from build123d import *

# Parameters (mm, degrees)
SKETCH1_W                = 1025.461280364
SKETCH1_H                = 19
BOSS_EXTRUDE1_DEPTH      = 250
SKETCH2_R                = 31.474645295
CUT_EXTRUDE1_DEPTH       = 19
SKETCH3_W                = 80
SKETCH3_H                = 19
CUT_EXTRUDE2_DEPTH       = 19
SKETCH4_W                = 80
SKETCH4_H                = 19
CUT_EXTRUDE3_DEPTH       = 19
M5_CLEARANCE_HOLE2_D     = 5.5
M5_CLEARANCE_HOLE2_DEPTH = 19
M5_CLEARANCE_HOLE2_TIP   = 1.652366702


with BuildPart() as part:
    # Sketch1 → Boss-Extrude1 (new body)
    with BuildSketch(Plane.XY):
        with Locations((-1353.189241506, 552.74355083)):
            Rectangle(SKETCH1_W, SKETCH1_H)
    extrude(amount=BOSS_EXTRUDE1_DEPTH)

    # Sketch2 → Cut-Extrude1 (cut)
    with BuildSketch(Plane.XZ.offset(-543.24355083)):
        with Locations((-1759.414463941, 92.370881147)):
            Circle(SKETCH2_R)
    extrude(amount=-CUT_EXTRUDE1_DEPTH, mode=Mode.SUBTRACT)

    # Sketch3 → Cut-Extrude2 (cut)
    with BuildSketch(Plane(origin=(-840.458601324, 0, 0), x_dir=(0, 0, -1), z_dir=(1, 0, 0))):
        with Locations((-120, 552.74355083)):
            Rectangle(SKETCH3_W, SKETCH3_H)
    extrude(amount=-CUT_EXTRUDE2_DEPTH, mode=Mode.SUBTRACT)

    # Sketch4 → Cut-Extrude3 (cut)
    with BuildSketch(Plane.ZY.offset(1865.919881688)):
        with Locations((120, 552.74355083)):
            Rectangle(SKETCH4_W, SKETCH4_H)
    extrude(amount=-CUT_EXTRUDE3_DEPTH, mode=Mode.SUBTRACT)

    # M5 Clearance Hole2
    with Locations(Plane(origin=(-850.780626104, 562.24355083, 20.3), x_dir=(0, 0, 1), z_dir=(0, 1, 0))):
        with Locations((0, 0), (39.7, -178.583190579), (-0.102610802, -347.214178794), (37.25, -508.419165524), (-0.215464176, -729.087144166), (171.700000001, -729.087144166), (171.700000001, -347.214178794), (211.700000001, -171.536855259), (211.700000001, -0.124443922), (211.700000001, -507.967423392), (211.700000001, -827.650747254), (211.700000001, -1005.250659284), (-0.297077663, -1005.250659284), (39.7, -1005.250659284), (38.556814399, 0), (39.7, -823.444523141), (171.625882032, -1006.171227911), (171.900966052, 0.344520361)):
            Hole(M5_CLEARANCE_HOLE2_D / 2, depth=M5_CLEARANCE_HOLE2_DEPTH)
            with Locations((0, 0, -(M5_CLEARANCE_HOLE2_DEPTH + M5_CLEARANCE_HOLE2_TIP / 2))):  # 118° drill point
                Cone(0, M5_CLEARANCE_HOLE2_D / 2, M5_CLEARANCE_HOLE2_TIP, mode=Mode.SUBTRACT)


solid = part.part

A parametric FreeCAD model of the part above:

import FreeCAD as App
import Part
import Sketcher

V = App.Vector
Q = App.Units.Quantity

doc = App.newDocument("Part")
params = doc.addObject("Spreadsheet::Sheet", "Params")
for row, (alias, value) in enumerate([
    ("sketch1_height", "19 mm"),
    ("pad1_length", "250 mm"),
    ("pocket1_length", "19 mm"),
    ("sketch3_width", "19 mm"),
    ("sketch3_height", "80 mm"),
    ("pocket2_length", "19 mm"),
    ("sketch4_width", "19 mm"),
    ("sketch4_height", "80 mm"),
    ("pocket3_length", "19 mm"),
    ("sketch5_diameter", "5.5 mm"),
    ("hole_diameter", "5.5 mm"),
    ("hole_depth", "19 mm"),
], start=1):
    params.set(f"A{row}", alias)
    params.set(f"B{row}", "=" + value)
    params.setAlias(f"B{row}", alias)

body = doc.addObject("PartDesign::Body", "Body")

sketch1 = doc.addObject("Sketcher::SketchObject", "Sketch")
body.addObject(sketch1)
sketch1.AttachmentSupport = (doc.XY_Plane, [""])
sketch1.MapMode = "FlatFace"
sketch1.addGeometry([
    Part.LineSegment(V(-1866, 562, 0), V(-1866, 543, 0)),
    Part.LineSegment(V(-1866, 543, 0), V(-840, 543, 0)),
    Part.LineSegment(V(-840, 543, 0), V(-840, 562, 0)),
    Part.LineSegment(V(-840, 562, 0), V(-1866, 562, 0)),
], False)
sketch1.addConstraint([
    Sketcher.Constraint("Coincident", 0, 2, 1, 1),
    Sketcher.Constraint("Coincident", 1, 2, 2, 1),
    Sketcher.Constraint("Coincident", 2, 2, 3, 1),
    Sketcher.Constraint("Coincident", 3, 2, 0, 1),
    Sketcher.Constraint("Vertical", 0),
    Sketcher.Constraint("Horizontal", 1),
    Sketcher.Constraint("Vertical", 2),
    Sketcher.Constraint("Horizontal", 3),
    Sketcher.Constraint("DistanceY", 0, 2, 0, 1, Q("19 mm")),
    Sketcher.Constraint("DistanceX", 1, 1, 1, 2, Q("1025.46128 mm")),
    Sketcher.Constraint("DistanceX", 1, 2, -1, 1, Q("840.458601 mm")),
    Sketcher.Constraint("DistanceY", -1, 1, 0, 2, Q("543.243551 mm")),
])
sketch1.setExpression("Constraints[8]", "Params.sketch1_height")
pad1 = doc.addObject("PartDesign::Pad", "Pad")
body.addObject(pad1)
pad1.Profile = sketch1
pad1.setExpression("Length", "Params.pad1_length")

sketch2 = doc.addObject("Sketcher::SketchObject", "Sketch001")
body.addObject(sketch2)
sketch2.AttachmentSupport = (doc.XZ_Plane, [""])
sketch2.MapMode = "FlatFace"
sketch2.AttachmentOffset = App.Placement(V(0, 0, -543.243551), App.Rotation())
sketch2.addGeometry(Part.Circle(V(-1759, 92, 0), V(0, 0, 1), 31), False)
sketch2.addConstraint([
    Sketcher.Constraint("Diameter", 0, Q("62.949291 mm")),
    Sketcher.Constraint("DistanceY", -1, 1, 0, 3, Q("92.370881 mm")),
    Sketcher.Constraint("DistanceX", 0, 3, -1, 1, Q("1759.414464 mm")),
])
pocket1 = doc.addObject("PartDesign::Pocket", "Pocket")
body.addObject(pocket1)
pocket1.Profile = sketch2
pocket1.setExpression("Length", "Params.pocket1_length")

sketch3 = doc.addObject("Sketcher::SketchObject", "Sketch002")
body.addObject(sketch3)
sketch3.AttachmentSupport = (doc.YZ_Plane, [""])
sketch3.MapMode = "FlatFace"
sketch3.AttachmentOffset = App.Placement(V(0, 0, -840.458601), App.Rotation())
sketch3.addGeometry([
    Part.LineSegment(V(562, 160, 0), V(543, 160, 0)),
    Part.LineSegment(V(543, 160, 0), V(543, 80, 0)),
    Part.LineSegment(V(543, 80, 0), V(562, 80, 0)),
    Part.LineSegment(V(562, 80, 0), V(562, 160, 0)),
], False)
sketch3.addConstraint([
    Sketcher.Constraint("Coincident", 0, 2, 1, 1),
    Sketcher.Constraint("Coincident", 1, 2, 2, 1),
    Sketcher.Constraint("Coincident", 2, 2, 3, 1),
    Sketcher.Constraint("Coincident", 3, 2, 0, 1),
    Sketcher.Constraint("Horizontal", 0),
    Sketcher.Constraint("Vertical", 1),
    Sketcher.Constraint("Horizontal", 2),
    Sketcher.Constraint("Vertical", 3),
    Sketcher.Constraint("DistanceX", 0, 2, 0, 1, Q("19 mm")),
    Sketcher.Constraint("DistanceY", 1, 2, 1, 1, Q("80 mm")),
    Sketcher.Constraint("DistanceY", -1, 1, 0, 2, Q("160 mm")),
    Sketcher.Constraint("DistanceX", -1, 1, 0, 2, Q("543.243551 mm")),
])
sketch3.setExpression("Constraints[8]", "Params.sketch3_width")
sketch3.setExpression("Constraints[9]", "Params.sketch3_height")
pocket2 = doc.addObject("PartDesign::Pocket", "Pocket001")
body.addObject(pocket2)
pocket2.Profile = sketch3
pocket2.setExpression("Length", "Params.pocket2_length")

sketch4 = doc.addObject("Sketcher::SketchObject", "Sketch003")
body.addObject(sketch4)
sketch4.AttachmentSupport = (doc.YZ_Plane, [""])
sketch4.MapMode = "FlatFace"
sketch4.AttachmentOffset = App.Placement(V(0, 0, -1865.919882), App.Rotation())
sketch4.addGeometry([
    Part.LineSegment(V(562, 80, 0), V(543, 80, 0)),
    Part.LineSegment(V(543, 80, 0), V(543, 160, 0)),
    Part.LineSegment(V(543, 160, 0), V(562, 160, 0)),
    Part.LineSegment(V(562, 160, 0), V(562, 80, 0)),
], False)
sketch4.addConstraint([
    Sketcher.Constraint("Coincident", 0, 2, 1, 1),
    Sketcher.Constraint("Coincident", 1, 2, 2, 1),
    Sketcher.Constraint("Coincident", 2, 2, 3, 1),
    Sketcher.Constraint("Coincident", 3, 2, 0, 1),
    Sketcher.Constraint("Horizontal", 0),
    Sketcher.Constraint("Vertical", 1),
    Sketcher.Constraint("Horizontal", 2),
    Sketcher.Constraint("Vertical", 3),
    Sketcher.Constraint("DistanceX", 0, 2, 0, 1, Q("19 mm")),
    Sketcher.Constraint("DistanceY", 1, 1, 1, 2, Q("80 mm")),
    Sketcher.Constraint("DistanceY", -1, 1, 0, 2, Q("80 mm")),
    Sketcher.Constraint("DistanceX", -1, 1, 0, 2, Q("543.243551 mm")),
])
sketch4.setExpression("Constraints[8]", "Params.sketch4_width")
sketch4.setExpression("Constraints[9]", "Params.sketch4_height")
pocket3 = doc.addObject("PartDesign::Pocket", "Pocket002")
body.addObject(pocket3)
pocket3.Profile = sketch4
pocket3.setExpression("Length", "Params.pocket3_length")
pocket3.Reversed = True

sketch5 = doc.addObject("Sketcher::SketchObject", "Sketch004")
body.addObject(sketch5)
sketch5.AttachmentSupport = (doc.XZ_Plane, [""])
sketch5.MapMode = "FlatFace"
sketch5.AttachmentOffset = App.Placement(V(0, 0, -562.243551), App.Rotation())
sketch5.addGeometry([
    Part.Circle(V(-850.8, 20.3, 0), V(0, 0, 1), 2.8),
    Part.Circle(V(-1029.4, 60, 0), V(0, 0, 1), 2.8),
    Part.Circle(V(-1198, 20.2, 0), V(0, 0, 1), 2.8),
    Part.Circle(V(-1359.2, 57.5, 0), V(0, 0, 1), 2.8),
    Part.Circle(V(-1579.9, 20.1, 0), V(0, 0, 1), 2.8),
    Part.Circle(V(-1579.9, 192, 0), V(0, 0, 1), 2.8),
    Part.Circle(V(-1198, 192, 0), V(0, 0, 1), 2.8),
    Part.Circle(V(-1022.3, 232, 0), V(0, 0, 1), 2.8),
    Part.Circle(V(-850.9, 232, 0), V(0, 0, 1), 2.8),
    Part.Circle(V(-1358.7, 232, 0), V(0, 0, 1), 2.8),
    Part.Circle(V(-1678.4, 232, 0), V(0, 0, 1), 2.8),
    Part.Circle(V(-1856, 232, 0), V(0, 0, 1), 2.8),
    Part.Circle(V(-1856, 20, 0), V(0, 0, 1), 2.8),
    Part.Circle(V(-1856, 60, 0), V(0, 0, 1), 2.8),
    Part.Circle(V(-850.8, 58.9, 0), V(0, 0, 1), 2.8),
    Part.Circle(V(-1674.2, 60, 0), V(0, 0, 1), 2.8),
    Part.Circle(V(-1857, 191.9, 0), V(0, 0, 1), 2.8),
    Part.Circle(V(-850.4, 192.2, 0), V(0, 0, 1), 2.8),
], False)
sketch5.addConstraint([
    Sketcher.Constraint("Equal", 0, 1),
    Sketcher.Constraint("Equal", 1, 2),
    Sketcher.Constraint("Equal", 2, 3),
    Sketcher.Constraint("Equal", 3, 4),
    Sketcher.Constraint("Equal", 4, 5),
    Sketcher.Constraint("Equal", 5, 6),
    Sketcher.Constraint("Equal", 6, 7),
    Sketcher.Constraint("Equal", 7, 8),
    Sketcher.Constraint("Equal", 8, 9),
    Sketcher.Constraint("Equal", 9, 10),
    Sketcher.Constraint("Equal", 10, 11),
    Sketcher.Constraint("Equal", 11, 12),
    Sketcher.Constraint("Equal", 12, 13),
    Sketcher.Constraint("Equal", 13, 14),
    Sketcher.Constraint("Equal", 14, 15),
    Sketcher.Constraint("Equal", 15, 16),
    Sketcher.Constraint("Equal", 16, 17),
    Sketcher.Constraint("Horizontal", 5, 3, 6, 3),
    Sketcher.Constraint("Horizontal", 7, 3, 8, 3),
    Sketcher.Constraint("Horizontal", 8, 3, 9, 3),
    Sketcher.Constraint("Horizontal", 9, 3, 10, 3),
    Sketcher.Constraint("Horizontal", 10, 3, 11, 3),
    Sketcher.Constraint("Horizontal", 1, 3, 13, 3),
    Sketcher.Constraint("Horizontal", 13, 3, 15, 3),
    Sketcher.Constraint("Vertical", 4, 3, 5, 3),
    Sketcher.Constraint("Vertical", 2, 3, 6, 3),
    Sketcher.Constraint("Vertical", 11, 3, 12, 3),
    Sketcher.Constraint("Vertical", 12, 3, 13, 3),
    Sketcher.Constraint("Vertical", 0, 3, 14, 3),
    Sketcher.Constraint("Diameter", 0, Q("5.5 mm")),
    Sketcher.Constraint("DistanceY", -1, 1, 1, 3, Q("60 mm")),
    Sketcher.Constraint("DistanceY", -1, 1, 5, 3, Q("192 mm")),
    Sketcher.Constraint("DistanceY", -1, 1, 7, 3, Q("232 mm")),
    Sketcher.Constraint("DistanceY", -1, 1, 0, 3, Q("20.3 mm")),
    Sketcher.Constraint("DistanceY", -1, 1, 3, 3, Q("57.55 mm")),
    Sketcher.Constraint("DistanceY", -1, 1, 2, 3, Q("20.197389 mm")),
    Sketcher.Constraint("DistanceX", 3, 3, -1, 1, Q("1359.199792 mm")),
    Sketcher.Constraint("DistanceX", 4, 3, -1, 1, Q("1579.86777 mm")),
    Sketcher.Constraint("DistanceX", 7, 3, -1, 1, Q("1022.317481 mm")),
    Sketcher.Constraint("DistanceX", 8, 3, -1, 1, Q("850.90507 mm")),
    Sketcher.Constraint("DistanceX", 9, 3, -1, 1, Q("1358.748049 mm")),
    Sketcher.Constraint("DistanceX", 15, 3, -1, 1, Q("1674.225149 mm")),
    Sketcher.Constraint("DistanceX", 1, 3, 0, 3, Q("178.583191 mm")),
    Sketcher.Constraint("DistanceX", 2, 3, 1, 3, Q("168.630988 mm")),
    Sketcher.Constraint("DistanceX", 10, 3, 3, 3, Q("319.231582 mm")),
    Sketcher.Constraint("DistanceX", 10, 3, 6, 3, Q("480.436568 mm")),
    Sketcher.Constraint("DistanceX", 16, 3, 11, 3, Q("0.920569 mm")),
    Sketcher.Constraint("DistanceY", 12, 3, 16, 3, Q("171.92296 mm")),
    Sketcher.Constraint("DistanceX", 16, 3, 10, 3, Q("178.520481 mm")),
    Sketcher.Constraint("DistanceX", 14, 3, 17, 3, Q("0.34452 mm")),
    Sketcher.Constraint("DistanceY", 14, 3, 17, 3, Q("133.344152 mm")),
    Sketcher.Constraint("DistanceY", -1, 1, 4, 3, Q("20.084536 mm")),
    Sketcher.Constraint("DistanceY", -1, 1, 12, 3, Q("20.002922 mm")),
    Sketcher.Constraint("DistanceY", -1, 1, 14, 3, Q("58.856814 mm")),
])
sketch5.setExpression("Constraints[29]", "Params.sketch5_diameter")
doc.recompute()
hole = doc.addObject("PartDesign::Hole", "Hole")
body.addObject(hole)
hole.Profile = sketch5
hole.ThreadType = "None"
hole.setExpression("Diameter", "Params.hole_diameter")
hole.DepthType = "Dimension"
hole.setExpression("Depth", "Params.hole_depth")
hole.DrillPoint = "Angled"
hole.DrillPointAngle = 118
hole.Reversed = True

doc.recompute()
